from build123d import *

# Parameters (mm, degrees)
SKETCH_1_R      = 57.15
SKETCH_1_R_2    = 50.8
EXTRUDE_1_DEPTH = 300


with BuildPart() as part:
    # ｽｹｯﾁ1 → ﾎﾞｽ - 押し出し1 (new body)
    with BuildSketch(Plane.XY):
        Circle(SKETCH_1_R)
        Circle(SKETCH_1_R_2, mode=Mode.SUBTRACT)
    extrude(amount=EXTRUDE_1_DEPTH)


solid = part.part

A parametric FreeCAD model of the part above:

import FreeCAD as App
import Part
import Sketcher

V = App.Vector
Q = App.Units.Quantity

doc = App.newDocument("Part")
body = doc.addObject("PartDesign::Body", "Body")

sketch1 = doc.addObject("Sketcher::SketchObject", "Sketch")
body.addObject(sketch1)
sketch1.AttachmentSupport = (doc.XY_Plane, [""])
sketch1.MapMode = "FlatFace"
sketch1.addGeometry(Part.Circle(V(0, 0, 0), V(0, 0, 1), 57), False)
sketch1.addGeometry(Part.Circle(V(0, 0, 0), V(0, 0, 1), 51), False)
sketch1.addConstraint(Sketcher.Constraint("Coincident", 0, 3, -1, 1))
sketch1.addConstraint(Sketcher.Constraint("Coincident", 1, 3, -1, 1))
sketch1.addConstraint(Sketcher.Constraint("Diameter", 1, Q("4 in")))
sketch1.addConstraint(Sketcher.Constraint("Diameter", 0, Q("4.5 in")))
pad1 = doc.addObject("PartDesign::Pad", "Pad")
body.addObject(pad1)
pad1.Profile = sketch1
pad1.Length = 300

doc.recompute()
